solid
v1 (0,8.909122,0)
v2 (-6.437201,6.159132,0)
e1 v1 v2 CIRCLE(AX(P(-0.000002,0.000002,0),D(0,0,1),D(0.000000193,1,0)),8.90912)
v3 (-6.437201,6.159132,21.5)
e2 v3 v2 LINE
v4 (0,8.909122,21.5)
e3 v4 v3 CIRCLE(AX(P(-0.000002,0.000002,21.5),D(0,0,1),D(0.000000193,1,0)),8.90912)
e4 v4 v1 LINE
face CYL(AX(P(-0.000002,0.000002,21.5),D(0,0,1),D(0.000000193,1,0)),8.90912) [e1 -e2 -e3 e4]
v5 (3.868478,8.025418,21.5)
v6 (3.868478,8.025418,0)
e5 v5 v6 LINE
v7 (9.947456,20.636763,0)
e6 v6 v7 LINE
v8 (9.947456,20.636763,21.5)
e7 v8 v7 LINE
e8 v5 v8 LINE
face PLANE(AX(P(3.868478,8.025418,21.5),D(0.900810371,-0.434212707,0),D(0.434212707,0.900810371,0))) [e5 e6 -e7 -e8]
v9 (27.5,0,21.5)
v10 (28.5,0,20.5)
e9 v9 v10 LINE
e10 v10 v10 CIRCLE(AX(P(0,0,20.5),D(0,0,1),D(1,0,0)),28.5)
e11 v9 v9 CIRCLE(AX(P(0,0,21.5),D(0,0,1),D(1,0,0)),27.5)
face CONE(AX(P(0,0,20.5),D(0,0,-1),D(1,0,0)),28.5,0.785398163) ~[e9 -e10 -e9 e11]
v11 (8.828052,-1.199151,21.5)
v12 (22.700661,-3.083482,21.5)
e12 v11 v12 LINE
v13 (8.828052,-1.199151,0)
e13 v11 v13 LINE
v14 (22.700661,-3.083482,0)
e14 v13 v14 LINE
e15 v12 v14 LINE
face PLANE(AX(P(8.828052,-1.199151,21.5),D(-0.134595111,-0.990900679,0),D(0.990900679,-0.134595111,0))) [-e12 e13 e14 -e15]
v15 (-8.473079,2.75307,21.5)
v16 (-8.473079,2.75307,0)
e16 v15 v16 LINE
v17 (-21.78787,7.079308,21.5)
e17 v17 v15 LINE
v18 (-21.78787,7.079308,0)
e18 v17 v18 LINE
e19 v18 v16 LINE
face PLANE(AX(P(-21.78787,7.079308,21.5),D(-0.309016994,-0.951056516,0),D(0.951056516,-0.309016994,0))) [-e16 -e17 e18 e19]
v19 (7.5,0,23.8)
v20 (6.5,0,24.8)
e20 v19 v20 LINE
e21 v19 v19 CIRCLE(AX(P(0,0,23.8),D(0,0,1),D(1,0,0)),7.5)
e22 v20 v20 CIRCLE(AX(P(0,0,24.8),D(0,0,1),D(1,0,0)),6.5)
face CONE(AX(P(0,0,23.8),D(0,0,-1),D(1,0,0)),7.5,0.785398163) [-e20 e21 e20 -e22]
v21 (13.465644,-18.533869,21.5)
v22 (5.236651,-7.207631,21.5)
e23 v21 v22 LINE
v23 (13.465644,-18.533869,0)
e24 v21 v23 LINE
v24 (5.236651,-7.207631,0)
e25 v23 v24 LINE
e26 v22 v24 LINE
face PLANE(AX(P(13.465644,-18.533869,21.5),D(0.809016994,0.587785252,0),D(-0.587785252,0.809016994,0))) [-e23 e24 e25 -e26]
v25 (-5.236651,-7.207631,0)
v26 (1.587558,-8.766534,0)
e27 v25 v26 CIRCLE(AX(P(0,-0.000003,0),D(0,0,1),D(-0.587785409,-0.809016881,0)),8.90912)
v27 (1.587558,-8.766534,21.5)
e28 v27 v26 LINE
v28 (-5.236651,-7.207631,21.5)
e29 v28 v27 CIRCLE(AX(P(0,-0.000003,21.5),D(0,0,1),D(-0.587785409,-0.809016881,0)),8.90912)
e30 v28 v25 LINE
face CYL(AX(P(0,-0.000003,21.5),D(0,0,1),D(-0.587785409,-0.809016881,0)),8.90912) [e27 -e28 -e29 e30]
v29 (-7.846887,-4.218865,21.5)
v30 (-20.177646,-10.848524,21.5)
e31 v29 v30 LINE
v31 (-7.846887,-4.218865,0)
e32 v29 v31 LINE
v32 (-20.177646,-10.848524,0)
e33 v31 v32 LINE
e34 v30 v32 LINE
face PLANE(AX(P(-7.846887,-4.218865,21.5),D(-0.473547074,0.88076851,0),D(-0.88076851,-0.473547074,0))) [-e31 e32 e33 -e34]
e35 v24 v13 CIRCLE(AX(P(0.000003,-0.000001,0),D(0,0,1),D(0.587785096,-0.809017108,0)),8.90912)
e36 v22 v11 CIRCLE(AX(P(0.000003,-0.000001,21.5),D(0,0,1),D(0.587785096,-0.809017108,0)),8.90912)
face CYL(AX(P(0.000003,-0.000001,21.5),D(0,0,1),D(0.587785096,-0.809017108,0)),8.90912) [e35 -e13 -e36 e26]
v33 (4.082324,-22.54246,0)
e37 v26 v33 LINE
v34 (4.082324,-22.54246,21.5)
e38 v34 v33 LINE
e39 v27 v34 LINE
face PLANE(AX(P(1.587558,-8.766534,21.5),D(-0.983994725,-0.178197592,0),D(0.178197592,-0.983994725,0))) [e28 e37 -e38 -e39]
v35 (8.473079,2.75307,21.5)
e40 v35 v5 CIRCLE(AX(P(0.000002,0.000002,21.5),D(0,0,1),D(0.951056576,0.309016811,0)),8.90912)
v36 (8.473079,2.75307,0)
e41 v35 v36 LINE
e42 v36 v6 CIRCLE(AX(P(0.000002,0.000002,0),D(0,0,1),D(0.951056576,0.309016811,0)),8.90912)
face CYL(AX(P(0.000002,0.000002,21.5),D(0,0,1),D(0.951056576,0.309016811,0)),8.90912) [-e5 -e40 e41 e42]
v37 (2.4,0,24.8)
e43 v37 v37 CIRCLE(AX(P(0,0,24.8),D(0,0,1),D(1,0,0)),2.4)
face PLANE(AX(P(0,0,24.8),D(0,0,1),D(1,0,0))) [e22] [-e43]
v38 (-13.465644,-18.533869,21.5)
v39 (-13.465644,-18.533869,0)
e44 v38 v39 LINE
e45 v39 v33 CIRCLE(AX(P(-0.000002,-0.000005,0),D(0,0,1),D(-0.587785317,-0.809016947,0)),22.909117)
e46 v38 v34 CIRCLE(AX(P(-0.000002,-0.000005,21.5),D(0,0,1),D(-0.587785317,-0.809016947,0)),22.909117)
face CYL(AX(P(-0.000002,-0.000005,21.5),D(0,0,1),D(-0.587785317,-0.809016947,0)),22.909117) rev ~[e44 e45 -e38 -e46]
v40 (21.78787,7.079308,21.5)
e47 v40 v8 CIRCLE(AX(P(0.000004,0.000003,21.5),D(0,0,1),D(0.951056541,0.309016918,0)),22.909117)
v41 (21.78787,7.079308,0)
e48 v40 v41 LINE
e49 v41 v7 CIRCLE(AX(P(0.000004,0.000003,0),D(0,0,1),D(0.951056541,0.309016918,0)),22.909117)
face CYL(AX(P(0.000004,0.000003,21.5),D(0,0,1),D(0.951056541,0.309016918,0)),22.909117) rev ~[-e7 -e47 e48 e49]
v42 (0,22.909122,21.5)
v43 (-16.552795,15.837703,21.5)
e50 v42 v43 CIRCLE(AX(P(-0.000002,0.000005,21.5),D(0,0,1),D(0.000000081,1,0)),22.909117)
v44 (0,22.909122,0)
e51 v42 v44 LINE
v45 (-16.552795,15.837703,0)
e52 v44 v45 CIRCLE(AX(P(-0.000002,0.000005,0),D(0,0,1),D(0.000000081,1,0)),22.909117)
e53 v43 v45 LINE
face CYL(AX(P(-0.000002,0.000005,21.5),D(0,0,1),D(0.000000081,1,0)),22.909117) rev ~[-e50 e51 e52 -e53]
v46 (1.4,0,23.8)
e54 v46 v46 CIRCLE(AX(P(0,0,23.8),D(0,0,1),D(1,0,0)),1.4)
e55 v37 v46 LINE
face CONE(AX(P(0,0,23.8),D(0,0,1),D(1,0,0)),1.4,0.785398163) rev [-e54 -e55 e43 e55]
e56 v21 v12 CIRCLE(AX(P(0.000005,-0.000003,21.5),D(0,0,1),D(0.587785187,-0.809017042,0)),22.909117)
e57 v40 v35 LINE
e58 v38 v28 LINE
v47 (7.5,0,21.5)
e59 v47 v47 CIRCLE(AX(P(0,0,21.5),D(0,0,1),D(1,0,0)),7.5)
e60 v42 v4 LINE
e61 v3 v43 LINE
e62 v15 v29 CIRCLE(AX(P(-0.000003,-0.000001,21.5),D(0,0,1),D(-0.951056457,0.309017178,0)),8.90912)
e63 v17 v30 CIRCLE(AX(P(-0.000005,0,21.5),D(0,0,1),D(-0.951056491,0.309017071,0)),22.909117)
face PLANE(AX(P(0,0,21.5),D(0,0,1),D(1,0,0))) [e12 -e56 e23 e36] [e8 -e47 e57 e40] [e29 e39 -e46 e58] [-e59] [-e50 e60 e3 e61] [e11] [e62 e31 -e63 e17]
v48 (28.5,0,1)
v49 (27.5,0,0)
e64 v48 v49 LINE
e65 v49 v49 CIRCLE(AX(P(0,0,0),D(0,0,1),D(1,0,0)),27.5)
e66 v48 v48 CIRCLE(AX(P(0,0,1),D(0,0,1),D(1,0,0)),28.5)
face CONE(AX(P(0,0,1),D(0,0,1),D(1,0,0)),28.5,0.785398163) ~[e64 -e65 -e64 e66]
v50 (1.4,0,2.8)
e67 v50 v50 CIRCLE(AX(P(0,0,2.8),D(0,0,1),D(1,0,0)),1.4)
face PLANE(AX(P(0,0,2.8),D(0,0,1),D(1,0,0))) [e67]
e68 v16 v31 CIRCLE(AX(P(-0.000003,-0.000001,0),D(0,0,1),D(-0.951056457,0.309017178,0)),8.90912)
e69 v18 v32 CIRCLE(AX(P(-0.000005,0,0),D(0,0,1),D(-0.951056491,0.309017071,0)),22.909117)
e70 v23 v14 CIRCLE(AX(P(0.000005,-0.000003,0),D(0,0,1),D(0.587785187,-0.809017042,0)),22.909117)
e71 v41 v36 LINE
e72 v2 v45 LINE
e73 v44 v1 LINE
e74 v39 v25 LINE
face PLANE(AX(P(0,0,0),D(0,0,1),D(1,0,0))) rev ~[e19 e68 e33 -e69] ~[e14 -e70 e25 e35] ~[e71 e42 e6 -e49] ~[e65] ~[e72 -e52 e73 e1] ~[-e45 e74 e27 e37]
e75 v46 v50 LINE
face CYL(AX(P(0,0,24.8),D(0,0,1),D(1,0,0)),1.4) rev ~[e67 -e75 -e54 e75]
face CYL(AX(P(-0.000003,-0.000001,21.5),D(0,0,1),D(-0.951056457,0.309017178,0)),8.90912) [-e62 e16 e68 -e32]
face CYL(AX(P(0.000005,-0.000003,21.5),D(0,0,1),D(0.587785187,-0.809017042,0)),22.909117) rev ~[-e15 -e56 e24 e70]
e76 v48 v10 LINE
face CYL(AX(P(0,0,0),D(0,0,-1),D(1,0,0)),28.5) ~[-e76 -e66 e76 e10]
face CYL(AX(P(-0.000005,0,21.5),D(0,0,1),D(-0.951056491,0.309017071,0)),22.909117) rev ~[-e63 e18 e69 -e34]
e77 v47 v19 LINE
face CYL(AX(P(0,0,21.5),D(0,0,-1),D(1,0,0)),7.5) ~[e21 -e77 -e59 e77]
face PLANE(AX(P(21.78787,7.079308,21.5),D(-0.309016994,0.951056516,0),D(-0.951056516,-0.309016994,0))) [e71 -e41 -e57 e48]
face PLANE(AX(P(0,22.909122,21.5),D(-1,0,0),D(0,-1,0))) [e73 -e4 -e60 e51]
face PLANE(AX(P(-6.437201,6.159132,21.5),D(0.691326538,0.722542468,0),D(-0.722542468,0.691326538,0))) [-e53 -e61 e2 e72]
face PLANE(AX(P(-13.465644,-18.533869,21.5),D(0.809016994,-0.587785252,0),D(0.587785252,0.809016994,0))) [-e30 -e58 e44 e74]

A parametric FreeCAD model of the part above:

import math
import FreeCAD as App
import Part
import Sketcher
Q = App.Units.Quantity


def edges_at(feature, points):
    """Names of the edges that pass closest to the given points."""
    edges = feature.Shape.Edges
    near = lambda p: min(range(len(edges)), key=lambda i: edges[i].distToShape(Part.Vertex(*p))[0])
    return sorted({f"Edge{near(p) + 1}" for p in points})

doc = App.newDocument("Part")
body = doc.addObject("PartDesign::Body", "Body")

# Sketch on XY plane
sketch1 = doc.addObject("Sketcher::SketchObject", "Sketch")
body.addObject(sketch1)
sketch1.AttachmentSupport = (doc.XY_Plane, [""])
sketch1.MapMode = "FlatFace"
sketch1.addGeometry(Part.Circle(App.Vector(0, 0, 0), App.Vector(0, 0, 1), 28), False)
sketch1.addConstraint([
    Sketcher.Constraint("Coincident", 0, 3, -1, 1),
    Sketcher.Constraint("Diameter", 0, Q("57 mm")),
])
pad1 = doc.addObject("PartDesign::Pad", "Pad")
body.addObject(pad1)
pad1.Profile = sketch1
pad1.Length = 21.5

# Sketch on XY plane
sketch2 = doc.addObject("Sketcher::SketchObject", "Sketch001")
body.addObject(sketch2)
sketch2.AttachmentSupport = (doc.XY_Plane, [""])
sketch2.MapMode = "FlatFace"
sketch2.AttachmentOffset = App.Placement(App.Vector(0, 0, 21.5), App.Rotation())
sketch2.addGeometry(Part.Circle(App.Vector(0, 0, 0), App.Vector(0, 0, 1), 8), False)
sketch2.addConstraint([
    Sketcher.Constraint("Coincident", 0, 3, -1, 1),
    Sketcher.Constraint("Diameter", 0, Q("15 mm")),
])
pad2 = doc.addObject("PartDesign::Pad", "Pad001")
body.addObject(pad2)
pad2.Profile = sketch2
pad2.Length = 3.3

# Sketch on XY plane
sketch3 = doc.addObject("Sketcher::SketchObject", "Sketch002")
body.addObject(sketch3)
sketch3.AttachmentSupport = (doc.XY_Plane, [""])
sketch3.MapMode = "FlatFace"
sketch3.AttachmentOffset = App.Placement(App.Vector(0, 0, 24.8), App.Rotation())
sketch3.addGeometry(Part.Circle(App.Vector(0, 0, 0), App.Vector(0, 0, 1), 1.4), False)
sketch3.addConstraint([
    Sketcher.Constraint("Coincident", 0, 3, -1, 1),
    Sketcher.Constraint("Diameter", 0, Q("2.8 mm")),
])
pocket1 = doc.addObject("PartDesign::Pocket", "Pocket")
body.addObject(pocket1)
pocket1.Profile = sketch3
pocket1.Length = 22

# Sketch on XY plane
sketch4 = doc.addObject("Sketcher::SketchObject", "Sketch003")
body.addObject(sketch4)
sketch4.AttachmentSupport = (doc.XY_Plane, [""])
sketch4.MapMode = "FlatFace"
sketch4.AttachmentOffset = App.Placement(App.Vector(0, 0, 21.5), App.Rotation())
sketch4.addGeometry([
    Part.LineSegment(App.Vector(-17, 16, 0), App.Vector(-6, 6, 0)),
    Part.ArcOfCircle(Part.Circle(App.Vector(0, 0, 0), App.Vector(0, 0, 1), 9), math.radians(90), math.radians(136)),
    Part.LineSegment(App.Vector(0, 9, 0), App.Vector(0, 23, 0)),
    Part.ArcOfCircle(Part.Circle(App.Vector(0, 0, 0), App.Vector(0, 0, 1), 23), math.radians(90), math.radians(136)),
], False)
sketch4.addConstraint([
    Sketcher.Constraint("Coincident", 0, 2, 1, 2),
    Sketcher.Constraint("Coincident", 1, 1, 2, 1),
    Sketcher.Constraint("Coincident", 2, 2, 3, 1),
    Sketcher.Constraint("Coincident", 3, 2, 0, 1),
    Sketcher.Constraint("Vertical", 2),
    Sketcher.Constraint("Coincident", 1, 3, -1, 1),
    Sketcher.Constraint("Coincident", 3, 3, -1, 1),
    Sketcher.Constraint("PointOnObject", 1, 1, -2),
    Sketcher.Constraint("DistanceY", 2, 1, 2, 2, Q("14 mm")),
    Sketcher.Constraint("Radius", 1, Q("8.90912 mm")),
    Sketcher.Constraint("DistanceX", 0, 2, -1, 1, Q("6.437201 mm")),
    Sketcher.Constraint("DistanceY", 1, 3, 3, 2, Q("15.837701 mm")),
])
pocket2 = doc.addObject("PartDesign::Pocket", "Pocket001")
body.addObject(pocket2)
pocket2.Profile = sketch4
pocket2.Type = "ThroughAll"
doc.recompute()

polarpattern = doc.addObject("PartDesign::PolarPattern", "PolarPattern")
body.addObject(polarpattern)
polarpattern.Originals = [pocket2]
polarpattern.Axis = (doc.Z_Axis, [""])
polarpattern.Angle = 360
polarpattern.Occurrences = 5
body.Tip = polarpattern
doc.recompute()

chamfer = doc.addObject("PartDesign::Chamfer", "Chamfer")
body.addObject(chamfer)
chamfer.Base = (polarpattern, edges_at(polarpattern, [(-1.4, 0, 24.8)]))
chamfer.Size = 1
doc.recompute()

chamfer2 = doc.addObject("PartDesign::Chamfer", "Chamfer001")
body.addObject(chamfer2)
chamfer2.Base = (chamfer, edges_at(chamfer, [(-28.5, 0, 21.5)]))
chamfer2.Size = 1
doc.recompute()

chamfer3 = doc.addObject("PartDesign::Chamfer", "Chamfer002")
body.addObject(chamfer3)
chamfer3.Base = (chamfer2, edges_at(chamfer2, [(-28.5, 0, 0)]))
chamfer3.Size = 1
doc.recompute()

chamfer4 = doc.addObject("PartDesign::Chamfer", "Chamfer003")
body.addObject(chamfer4)
chamfer4.Base = (chamfer3, edges_at(chamfer3, [(-7.5, 0, 24.8)]))
chamfer4.Size = 1

doc.recompute()
